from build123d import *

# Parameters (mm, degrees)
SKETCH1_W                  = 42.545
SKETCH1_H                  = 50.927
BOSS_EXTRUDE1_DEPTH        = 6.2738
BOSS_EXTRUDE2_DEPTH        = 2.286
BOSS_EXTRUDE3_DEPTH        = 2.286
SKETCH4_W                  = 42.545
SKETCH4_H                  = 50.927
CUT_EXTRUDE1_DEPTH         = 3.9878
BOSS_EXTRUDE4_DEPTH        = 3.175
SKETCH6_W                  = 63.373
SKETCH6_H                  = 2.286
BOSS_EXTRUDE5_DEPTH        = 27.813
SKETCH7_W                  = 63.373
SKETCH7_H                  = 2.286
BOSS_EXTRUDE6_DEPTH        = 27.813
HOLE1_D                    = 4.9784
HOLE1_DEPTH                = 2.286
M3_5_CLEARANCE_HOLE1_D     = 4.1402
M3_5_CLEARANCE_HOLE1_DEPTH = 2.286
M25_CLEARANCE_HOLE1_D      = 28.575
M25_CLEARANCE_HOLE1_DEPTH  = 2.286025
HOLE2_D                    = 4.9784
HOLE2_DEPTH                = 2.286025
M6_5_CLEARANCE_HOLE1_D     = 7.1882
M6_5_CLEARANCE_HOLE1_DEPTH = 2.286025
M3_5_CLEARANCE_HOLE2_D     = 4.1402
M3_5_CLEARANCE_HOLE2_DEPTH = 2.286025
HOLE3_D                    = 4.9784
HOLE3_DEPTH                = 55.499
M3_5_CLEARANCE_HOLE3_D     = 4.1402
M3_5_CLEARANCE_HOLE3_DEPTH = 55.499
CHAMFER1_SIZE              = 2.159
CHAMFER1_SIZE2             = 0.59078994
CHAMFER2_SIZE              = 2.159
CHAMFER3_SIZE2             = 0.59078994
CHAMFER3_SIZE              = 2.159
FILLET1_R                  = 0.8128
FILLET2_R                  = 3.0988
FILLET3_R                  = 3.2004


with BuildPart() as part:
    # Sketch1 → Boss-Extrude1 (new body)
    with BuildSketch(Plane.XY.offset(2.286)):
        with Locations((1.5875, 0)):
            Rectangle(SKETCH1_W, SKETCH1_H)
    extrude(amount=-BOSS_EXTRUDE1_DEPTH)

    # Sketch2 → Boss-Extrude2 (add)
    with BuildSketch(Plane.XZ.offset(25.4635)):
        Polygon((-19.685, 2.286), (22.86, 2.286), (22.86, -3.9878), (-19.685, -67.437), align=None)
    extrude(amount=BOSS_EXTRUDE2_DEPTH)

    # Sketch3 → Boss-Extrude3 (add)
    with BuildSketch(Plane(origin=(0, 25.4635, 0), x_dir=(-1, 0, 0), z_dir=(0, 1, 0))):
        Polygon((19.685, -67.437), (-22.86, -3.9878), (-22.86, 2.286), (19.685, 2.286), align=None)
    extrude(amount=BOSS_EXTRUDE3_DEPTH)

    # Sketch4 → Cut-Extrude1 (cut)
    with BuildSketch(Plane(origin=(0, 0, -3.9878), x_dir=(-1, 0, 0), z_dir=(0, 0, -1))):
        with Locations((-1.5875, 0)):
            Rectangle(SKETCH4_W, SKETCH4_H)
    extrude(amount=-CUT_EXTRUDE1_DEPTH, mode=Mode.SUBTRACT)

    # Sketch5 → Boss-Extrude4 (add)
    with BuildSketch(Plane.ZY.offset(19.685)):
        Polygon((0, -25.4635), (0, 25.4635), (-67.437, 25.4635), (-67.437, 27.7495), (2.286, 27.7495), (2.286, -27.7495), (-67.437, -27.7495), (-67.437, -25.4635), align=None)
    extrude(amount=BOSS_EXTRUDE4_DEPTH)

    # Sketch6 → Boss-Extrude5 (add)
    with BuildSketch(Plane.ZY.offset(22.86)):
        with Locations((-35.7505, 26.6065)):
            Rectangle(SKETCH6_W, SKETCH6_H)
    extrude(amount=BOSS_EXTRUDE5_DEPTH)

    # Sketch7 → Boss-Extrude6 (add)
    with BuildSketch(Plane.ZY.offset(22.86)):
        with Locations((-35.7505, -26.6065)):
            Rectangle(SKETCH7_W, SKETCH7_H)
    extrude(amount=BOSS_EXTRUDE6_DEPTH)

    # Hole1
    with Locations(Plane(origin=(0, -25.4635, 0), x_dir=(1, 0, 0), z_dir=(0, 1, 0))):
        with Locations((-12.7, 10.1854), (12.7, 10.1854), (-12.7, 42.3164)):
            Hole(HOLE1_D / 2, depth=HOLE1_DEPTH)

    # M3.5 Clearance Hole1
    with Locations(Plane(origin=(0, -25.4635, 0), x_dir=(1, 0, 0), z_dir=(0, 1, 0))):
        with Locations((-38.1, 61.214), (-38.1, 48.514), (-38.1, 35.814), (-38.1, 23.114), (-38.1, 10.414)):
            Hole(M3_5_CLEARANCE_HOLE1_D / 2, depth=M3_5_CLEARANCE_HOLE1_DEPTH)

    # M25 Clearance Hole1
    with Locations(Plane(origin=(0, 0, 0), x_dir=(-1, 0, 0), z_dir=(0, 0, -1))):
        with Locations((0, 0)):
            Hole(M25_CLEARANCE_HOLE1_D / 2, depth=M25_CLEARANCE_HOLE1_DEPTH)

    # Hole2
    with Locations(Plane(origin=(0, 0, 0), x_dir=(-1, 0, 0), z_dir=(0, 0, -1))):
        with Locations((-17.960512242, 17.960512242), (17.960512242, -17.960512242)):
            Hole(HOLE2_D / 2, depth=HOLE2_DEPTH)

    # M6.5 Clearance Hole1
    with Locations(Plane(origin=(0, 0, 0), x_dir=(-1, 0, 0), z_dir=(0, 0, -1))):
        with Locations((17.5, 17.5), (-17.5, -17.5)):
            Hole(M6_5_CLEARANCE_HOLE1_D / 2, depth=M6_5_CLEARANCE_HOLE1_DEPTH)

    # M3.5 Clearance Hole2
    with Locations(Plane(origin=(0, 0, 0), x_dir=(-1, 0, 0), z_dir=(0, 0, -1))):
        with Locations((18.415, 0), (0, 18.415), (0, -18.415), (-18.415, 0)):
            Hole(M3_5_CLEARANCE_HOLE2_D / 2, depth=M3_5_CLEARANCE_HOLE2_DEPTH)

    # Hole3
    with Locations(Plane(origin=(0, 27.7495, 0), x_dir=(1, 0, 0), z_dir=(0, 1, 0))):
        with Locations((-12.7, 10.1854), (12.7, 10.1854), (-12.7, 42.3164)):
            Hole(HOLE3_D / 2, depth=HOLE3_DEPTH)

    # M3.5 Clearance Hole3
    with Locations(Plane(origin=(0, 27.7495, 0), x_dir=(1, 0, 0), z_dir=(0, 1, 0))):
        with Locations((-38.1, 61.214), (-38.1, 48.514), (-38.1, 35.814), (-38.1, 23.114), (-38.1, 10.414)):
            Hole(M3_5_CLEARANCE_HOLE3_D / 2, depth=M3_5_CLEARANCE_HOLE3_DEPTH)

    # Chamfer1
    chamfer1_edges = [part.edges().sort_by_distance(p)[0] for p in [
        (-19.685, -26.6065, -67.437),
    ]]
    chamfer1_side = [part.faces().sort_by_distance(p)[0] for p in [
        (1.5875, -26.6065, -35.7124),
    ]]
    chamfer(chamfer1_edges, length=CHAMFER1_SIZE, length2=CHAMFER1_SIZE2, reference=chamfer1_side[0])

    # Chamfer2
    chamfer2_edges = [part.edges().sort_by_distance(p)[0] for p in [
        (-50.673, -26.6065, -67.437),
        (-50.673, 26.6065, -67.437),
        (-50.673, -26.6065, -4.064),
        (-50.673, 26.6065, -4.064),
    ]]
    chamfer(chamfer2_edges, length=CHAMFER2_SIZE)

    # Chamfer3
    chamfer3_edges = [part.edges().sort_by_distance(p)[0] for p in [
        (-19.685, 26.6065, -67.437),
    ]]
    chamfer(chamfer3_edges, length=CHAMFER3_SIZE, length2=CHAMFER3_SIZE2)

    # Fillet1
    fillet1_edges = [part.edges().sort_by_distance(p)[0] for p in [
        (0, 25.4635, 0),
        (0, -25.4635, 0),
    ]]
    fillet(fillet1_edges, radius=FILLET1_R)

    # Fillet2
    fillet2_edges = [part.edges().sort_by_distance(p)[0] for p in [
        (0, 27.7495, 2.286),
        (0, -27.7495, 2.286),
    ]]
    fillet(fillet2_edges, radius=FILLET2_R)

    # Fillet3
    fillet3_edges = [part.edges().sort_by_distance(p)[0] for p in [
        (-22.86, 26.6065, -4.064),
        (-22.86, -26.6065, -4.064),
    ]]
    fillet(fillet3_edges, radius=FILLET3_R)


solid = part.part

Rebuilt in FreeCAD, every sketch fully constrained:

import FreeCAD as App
import Part
import Sketcher
from FreeCAD import Vector
Q = App.Units.Quantity


def edges_at(feature, points):
    """Names of the edges that pass closest to the given points."""
    edges = feature.Shape.Edges
    near = lambda p: min(range(len(edges)), key=lambda i: edges[i].distToShape(Part.Vertex(*p))[0])
    return sorted({f"Edge{near(p) + 1}" for p in points})

doc = App.newDocument("Part")
body = doc.addObject("PartDesign::Body", "Body")

sketch1 = doc.addObject("Sketcher::SketchObject", "Sketch")
body.addObject(sketch1)
sketch1.AttachmentSupport = (doc.XY_Plane, [""])
sketch1.MapMode = "FlatFace"
sketch1.AttachmentOffset = App.Placement(Vector(0, 0, 0.09 * 25.4), App.Rotation())
sketch1.addGeometry(Part.LineSegment(Vector(-20, 25, 0), Vector(-20, -25, 0)), False)
sketch1.addGeometry(Part.LineSegment(Vector(-20, -25, 0), Vector(23, -25, 0)), False)
sketch1.addGeometry(Part.LineSegment(Vector(23, -25, 0), Vector(23, 25, 0)), False)
sketch1.addGeometry(Part.LineSegment(Vector(23, 25, 0), Vector(-20, 25, 0)), False)
sketch1.addConstraint(Sketcher.Constraint("Coincident", 0, 2, 1, 1))
sketch1.addConstraint(Sketcher.Constraint("Coincident", 1, 2, 2, 1))
sketch1.addConstraint(Sketcher.Constraint("Coincident", 2, 2, 3, 1))
sketch1.addConstraint(Sketcher.Constraint("Coincident", 3, 2, 0, 1))
sketch1.addConstraint(Sketcher.Constraint("Vertical", 0))
sketch1.addConstraint(Sketcher.Constraint("Horizontal", 1))
sketch1.addConstraint(Sketcher.Constraint("Vertical", 2))
sketch1.addConstraint(Sketcher.Constraint("Horizontal", 3))
sketch1.addConstraint(Sketcher.Constraint("DistanceX", -1, 1, 1, 2, Q("0.9 in")))
sketch1.addConstraint(Sketcher.Constraint("DistanceX", 1, 1, 1, 2, Q("1.675 in")))
sketch1.addConstraint(Sketcher.Constraint("DistanceY", 0, 2, 0, 1, Q("2.005 in")))
sketch1.addConstraint(Sketcher.Constraint("DistanceY", 0, 2, -1, 1, Q("1.0025 in")))
pad1 = doc.addObject("PartDesign::Pad", "Pad")
body.addObject(pad1)
pad1.Profile = sketch1
pad1.Length = Q("0.247 in")
pad1.Reversed = True

sketch2 = doc.addObject("Sketcher::SketchObject", "Sketch001")
body.addObject(sketch2)
sketch2.AttachmentSupport = (doc.XZ_Plane, [""])
sketch2.MapMode = "FlatFace"
sketch2.AttachmentOffset = App.Placement(Vector(0, 0, 1.0025 * 25.4), App.Rotation())
sketch2.addGeometry(Part.LineSegment(Vector(23, 2, 0), Vector(-20, 2, 0)), False)
sketch2.addGeometry(Part.LineSegment(Vector(-20, 2, 0), Vector(-20, -67, 0)), False)
sketch2.addGeometry(Part.LineSegment(Vector(-20, -67, 0), Vector(23, -4, 0)), False)
sketch2.addGeometry(Part.LineSegment(Vector(23, -4, 0), Vector(23, 2, 0)), False)
sketch2.addConstraint(Sketcher.Constraint("Coincident", 0, 2, 1, 1))
sketch2.addConstraint(Sketcher.Constraint("Coincident", 1, 2, 2, 1))
sketch2.addConstraint(Sketcher.Constraint("Coincident", 2, 2, 3, 1))
sketch2.addConstraint(Sketcher.Constraint("Coincident", 3, 2, 0, 1))
sketch2.addConstraint(Sketcher.Constraint("Horizontal", 0))
sketch2.addConstraint(Sketcher.Constraint("Vertical", 1))
sketch2.addConstraint(Sketcher.Constraint("Vertical", 3))
sketch2.addConstraint(Sketcher.Constraint("DistanceX", -1, 1, 2, 2, Q("0.9 in")))
sketch2.addConstraint(Sketcher.Constraint("DistanceX", 0, 2, 0, 1, Q("1.675 in")))
sketch2.addConstraint(Sketcher.Constraint("DistanceY", 1, 2, 1, 1, Q("2.745 in")))
sketch2.addConstraint(Sketcher.Constraint("DistanceY", 3, 1, 3, 2, Q("0.247 in")))
sketch2.addConstraint(Sketcher.Constraint("DistanceY", -1, 1, 0, 2, Q("0.09 in")))
pad2 = doc.addObject("PartDesign::Pad", "Pad001")
body.addObject(pad2)
pad2.Profile = sketch2
pad2.Length = Q("0.09 in")

sketch3 = doc.addObject("Sketcher::SketchObject", "Sketch002")
body.addObject(sketch3)
sketch3.AttachmentSupport = (doc.XZ_Plane, [""])
sketch3.MapMode = "FlatFace"
sketch3.AttachmentOffset = App.Placement(Vector(0, 0, -1.0025 * 25.4), App.Rotation())
sketch3.addGeometry(Part.LineSegment(Vector(23, -4, 0), Vector(-20, -67, 0)), False)
sketch3.addGeometry(Part.LineSegment(Vector(-20, -67, 0), Vector(-20, 2, 0)), False)
sketch3.addGeometry(Part.LineSegment(Vector(-20, 2, 0), Vector(23, 2, 0)), False)
sketch3.addGeometry(Part.LineSegment(Vector(23, 2, 0), Vector(23, -4, 0)), False)
sketch3.addConstraint(Sketcher.Constraint("Coincident", 0, 2, 1, 1))
sketch3.addConstraint(Sketcher.Constraint("Coincident", 1, 2, 2, 1))
sketch3.addConstraint(Sketcher.Constraint("Coincident", 2, 2, 3, 1))
sketch3.addConstraint(Sketcher.Constraint("Coincident", 3, 2, 0, 1))
sketch3.addConstraint(Sketcher.Constraint("Vertical", 1))
sketch3.addConstraint(Sketcher.Constraint("Horizontal", 2))
sketch3.addConstraint(Sketcher.Constraint("Vertical", 3))
sketch3.addConstraint(Sketcher.Constraint("DistanceX", -1, 1, 2, 2, Q("0.9 in")))
sketch3.addConstraint(Sketcher.Constraint("DistanceX", 2, 1, 2, 2, Q("1.675 in")))
sketch3.addConstraint(Sketcher.Constraint("DistanceY", 1, 1, 1, 2, Q("2.745 in")))
sketch3.addConstraint(Sketcher.Constraint("DistanceY", 3, 2, 3, 1, Q("0.247 in")))
sketch3.addConstraint(Sketcher.Constraint("DistanceY", -1, 1, 1, 2, Q("0.09 in")))
pad3 = doc.addObject("PartDesign::Pad", "Pad002")
body.addObject(pad3)
pad3.Profile = sketch3
pad3.Length = Q("0.09 in")
pad3.Reversed = True

sketch4 = doc.addObject("Sketcher::SketchObject", "Sketch003")
body.addObject(sketch4)
sketch4.AttachmentSupport = (doc.XY_Plane, [""])
sketch4.MapMode = "FlatFace"
sketch4.AttachmentOffset = App.Placement(Vector(0, 0, -0.157 * 25.4), App.Rotation())
sketch4.addGeometry(Part.LineSegment(Vector(23, 25, 0), Vector(23, -25, 0)), False)
sketch4.addGeometry(Part.LineSegment(Vector(23, -25, 0), Vector(-20, -25, 0)), False)
sketch4.addGeometry(Part.LineSegment(Vector(-20, -25, 0), Vector(-20, 25, 0)), False)
sketch4.addGeometry(Part.LineSegment(Vector(-20, 25, 0), Vector(23, 25, 0)), False)
sketch4.addConstraint(Sketcher.Constraint("Coincident", 0, 2, 1, 1))
sketch4.addConstraint(Sketcher.Constraint("Coincident", 1, 2, 2, 1))
sketch4.addConstraint(Sketcher.Constraint("Coincident", 2, 2, 3, 1))
sketch4.addConstraint(Sketcher.Constraint("Coincident", 3, 2, 0, 1))
sketch4.addConstraint(Sketcher.Constraint("Vertical", 0))
sketch4.addConstraint(Sketcher.Constraint("Horizontal", 1))
sketch4.addConstraint(Sketcher.Constraint("Vertical", 2))
sketch4.addConstraint(Sketcher.Constraint("Horizontal", 3))
sketch4.addConstraint(Sketcher.Constraint("DistanceX", -1, 1, 0, 2, Q("0.9 in")))
sketch4.addConstraint(Sketcher.Constraint("DistanceX", 1, 2, 1, 1, Q("1.675 in")))
sketch4.addConstraint(Sketcher.Constraint("DistanceY", 0, 2, 0, 1, Q("2.005 in")))
sketch4.addConstraint(Sketcher.Constraint("DistanceY", 0, 2, -1, 1, Q("1.0025 in")))
pocket1 = doc.addObject("PartDesign::Pocket", "Pocket")
body.addObject(pocket1)
pocket1.Profile = sketch4
pocket1.Length = Q("0.157 in")
pocket1.Reversed = True

sketch5 = doc.addObject("Sketcher::SketchObject", "Sketch004")
body.addObject(sketch5)
sketch5.AttachmentSupport = (doc.YZ_Plane, [""])
sketch5.MapMode = "FlatFace"
sketch5.AttachmentOffset = App.Placement(Vector(0, 0, -0.775 * 25.4), App.Rotation())
sketch5.addGeometry(Part.LineSegment(Vector(25.5, 0, 0), Vector(-25.5, 0, 0)), False)
sketch5.addGeometry(Part.LineSegment(Vector(-25.5, 0, 0), Vector(-25.5, -67.4, 0)), False)
sketch5.addGeometry(Part.LineSegment(Vector(-25.5, -67.4, 0), Vector(-27.7, -67.4, 0)), False)
sketch5.addGeometry(Part.LineSegment(Vector(-27.7, -67.4, 0), Vector(-27.7, 2.3, 0)), False)
sketch5.addGeometry(Part.LineSegment(Vector(-27.7, 2.3, 0), Vector(27.7, 2.3, 0)), False)
sketch5.addGeometry(Part.LineSegment(Vector(27.7, 2.3, 0), Vector(27.7, -67.4, 0)), False)
sketch5.addGeometry(Part.LineSegment(Vector(27.7, -67.4, 0), Vector(25.5, -67.4, 0)), False)
sketch5.addGeometry(Part.LineSegment(Vector(25.5, -67.4, 0), Vector(25.5, 0, 0)), False)
sketch5.addConstraint(Sketcher.Constraint("Coincident", 0, 2, 1, 1))
sketch5.addConstraint(Sketcher.Constraint("Coincident", 1, 2, 2, 1))
sketch5.addConstraint(Sketcher.Constraint("Coincident", 2, 2, 3, 1))
sketch5.addConstraint(Sketcher.Constraint("Coincident", 3, 2, 4, 1))
sketch5.addConstraint(Sketcher.Constraint("Coincident", 4, 2, 5, 1))
sketch5.addConstraint(Sketcher.Constraint("Coincident", 5, 2, 6, 1))
sketch5.addConstraint(Sketcher.Constraint("Coincident", 6, 2, 7, 1))
sketch5.addConstraint(Sketcher.Constraint("Coincident", 7, 2, 0, 1))
sketch5.addConstraint(Sketcher.Constraint("Horizontal", 0))
sketch5.addConstraint(Sketcher.Constraint("Vertical", 1))
sketch5.addConstraint(Sketcher.Constraint("Horizontal", 2))
sketch5.addConstraint(Sketcher.Constraint("Vertical", 3))
sketch5.addConstraint(Sketcher.Constraint("Horizontal", 4))
sketch5.addConstraint(Sketcher.Constraint("Vertical", 5))
sketch5.addConstraint(Sketcher.Constraint("Horizontal", 6))
sketch5.addConstraint(Sketcher.Constraint("Vertical", 7))
sketch5.addConstraint(Sketcher.Constraint("Symmetric", 0, 2, 7, 2, -1, 1))
sketch5.addConstraint(Sketcher.Constraint("Symmetric", 2, 2, 5, 2, -2))
sketch5.addConstraint(Sketcher.Constraint("DistanceX", 2, 2, 2, 1, Q("0.09 in")))
sketch5.addConstraint(Sketcher.Constraint("DistanceX", 0, 2, 0, 1, Q("2.005 in")))
sketch5.addConstraint(Sketcher.Constraint("DistanceY", 1, 2, 1, 1, Q("2.655 in")))
sketch5.addConstraint(Sketcher.Constraint("DistanceY", 3, 1, 3, 2, Q("2.745 in")))
pad4 = doc.addObject("PartDesign::Pad", "Pad003")
body.addObject(pad4)
pad4.Profile = sketch5
pad4.Length = Q("0.125 in")
pad4.Reversed = True

sketch6 = doc.addObject("Sketcher::SketchObject", "Sketch005")
body.addObject(sketch6)
sketch6.AttachmentSupport = (doc.YZ_Plane, [""])
sketch6.MapMode = "FlatFace"
sketch6.AttachmentOffset = App.Placement(Vector(0, 0, -0.9 * 25.4), App.Rotation())
sketch6.addGeometry(Part.LineSegment(Vector(27.7, -67.4, 0), Vector(25.5, -67.4, 0)), False)
sketch6.addGeometry(Part.LineSegment(Vector(25.5, -67.4, 0), Vector(25.5, -4.1, 0)), False)
sketch6.addGeometry(Part.LineSegment(Vector(25.5, -4.1, 0), Vector(27.7, -4.1, 0)), False)
sketch6.addGeometry(Part.LineSegment(Vector(27.7, -4.1, 0), Vector(27.7, -67.4, 0)), False)
sketch6.addConstraint(Sketcher.Constraint("Coincident", 0, 2, 1, 1))
sketch6.addConstraint(Sketcher.Constraint("Coincident", 1, 2, 2, 1))
sketch6.addConstraint(Sketcher.Constraint("Coincident", 2, 2, 3, 1))
sketch6.addConstraint(Sketcher.Constraint("Coincident", 3, 2, 0, 1))
sketch6.addConstraint(Sketcher.Constraint("Horizontal", 0))
sketch6.addConstraint(Sketcher.Constraint("Vertical", 1))
sketch6.addConstraint(Sketcher.Constraint("Horizontal", 2))
sketch6.addConstraint(Sketcher.Constraint("Vertical", 3))
sketch6.addConstraint(Sketcher.Constraint("DistanceX", 0, 2, 0, 1, Q("0.09 in")))
sketch6.addConstraint(Sketcher.Constraint("DistanceY", 1, 1, 1, 2, Q("2.495 in")))
sketch6.addConstraint(Sketcher.Constraint("DistanceY", 1, 2, -1, 1, Q("0.16 in")))
sketch6.addConstraint(Sketcher.Constraint("DistanceX", -1, 1, 0, 2, Q("1.0025 in")))
pad5 = doc.addObject("PartDesign::Pad", "Pad004")
body.addObject(pad5)
pad5.Profile = sketch6
pad5.Length = Q("1.095 in")
pad5.Reversed = True

sketch7 = doc.addObject("Sketcher::SketchObject", "Sketch006")
body.addObject(sketch7)
sketch7.AttachmentSupport = (doc.YZ_Plane, [""])
sketch7.MapMode = "FlatFace"
sketch7.AttachmentOffset = App.Placement(Vector(0, 0, -0.9 * 25.4), App.Rotation())
sketch7.addGeometry(Part.LineSegment(Vector(-25.5, -67.4, 0), Vector(-27.7, -67.4, 0)), False)
sketch7.addGeometry(Part.LineSegment(Vector(-27.7, -67.4, 0), Vector(-27.7, -4.1, 0)), False)
sketch7.addGeometry(Part.LineSegment(Vector(-27.7, -4.1, 0), Vector(-25.5, -4.1, 0)), False)
sketch7.addGeometry(Part.LineSegment(Vector(-25.5, -4.1, 0), Vector(-25.5, -67.4, 0)), False)
sketch7.addConstraint(Sketcher.Constraint("Coincident", 0, 2, 1, 1))
sketch7.addConstraint(Sketcher.Constraint("Coincident", 1, 2, 2, 1))
sketch7.addConstraint(Sketcher.Constraint("Coincident", 2, 2, 3, 1))
sketch7.addConstraint(Sketcher.Constraint("Coincident", 3, 2, 0, 1))
sketch7.addConstraint(Sketcher.Constraint("Horizontal", 0))
sketch7.addConstraint(Sketcher.Constraint("Vertical", 1))
sketch7.addConstraint(Sketcher.Constraint("Horizontal", 2))
sketch7.addConstraint(Sketcher.Constraint("Vertical", 3))
sketch7.addConstraint(Sketcher.Constraint("DistanceX", 0, 2, 0, 1, Q("0.09 in")))
sketch7.addConstraint(Sketcher.Constraint("DistanceY", 1, 1, 1, 2, Q("2.495 in")))
sketch7.addConstraint(Sketcher.Constraint("DistanceY", 1, 2, -1, 1, Q("0.16 in")))
sketch7.addConstraint(Sketcher.Constraint("DistanceX", 0, 2, -1, 1, Q("1.0925 in")))
pad6 = doc.addObject("PartDesign::Pad", "Pad005")
body.addObject(pad6)
pad6.Profile = sketch7
pad6.Length = Q("1.095 in")
pad6.Reversed = True

sketch8 = doc.addObject("Sketcher::SketchObject", "Sketch007")
body.addObject(sketch8)
sketch8.AttachmentSupport = (doc.XZ_Plane, [""])
sketch8.MapMode = "FlatFace"
sketch8.AttachmentOffset = App.Placement(Vector(0, 0, 1.0025 * 25.4), App.Rotation())
sketch8.addGeometry(Part.Circle(Vector(-12.7, -10.2, 0), Vector(0, 0, 1), 2.5), False)
sketch8.addGeometry(Part.Circle(Vector(12.7, -10.2, 0), Vector(0, 0, 1), 2.5), False)
sketch8.addGeometry(Part.Circle(Vector(-12.7, -42.3, 0), Vector(0, 0, 1), 2.5), False)
sketch8.addConstraint(Sketcher.Constraint("Equal", 0, 1))
sketch8.addConstraint(Sketcher.Constraint("Equal", 1, 2))
sketch8.addConstraint(Sketcher.Constraint("Symmetric", 0, 3, 1, 3, -2))
sketch8.addConstraint(Sketcher.Constraint("Vertical", 0, 3, 2, 3))
sketch8.addConstraint(Sketcher.Constraint("Diameter", 0, Q("0.196 in")))
sketch8.addConstraint(Sketcher.Constraint("DistanceX", 0, 3, 1, 3, Q("1 in")))
sketch8.addConstraint(Sketcher.Constraint("DistanceY", 0, 3, -1, 1, Q("0.401 in")))
sketch8.addConstraint(Sketcher.Constraint("DistanceY", 2, 3, -1, 1, Q("1.666 in")))
doc.recompute()
hole = doc.addObject("PartDesign::Hole", "Hole")
body.addObject(hole)
hole.Profile = sketch8
hole.ThreadType = "None"
hole.Diameter = Q("0.196 in")
hole.DepthType = "Dimension"
hole.Depth = Q("0.09 in")
hole.DrillPoint = "Flat"
hole.Reversed = True

sketch9 = doc.addObject("Sketcher::SketchObject", "Sketch008")
body.addObject(sketch9)
sketch9.AttachmentSupport = (doc.XZ_Plane, [""])
sketch9.MapMode = "FlatFace"
sketch9.AttachmentOffset = App.Placement(Vector(0, 0, 1.0025 * 25.4), App.Rotation())
sketch9.addGeometry(Part.Circle(Vector(-38.1, -61.2, 0), Vector(0, 0, 1), 2.1), False)
sketch9.addGeometry(Part.Circle(Vector(-38.1, -48.5, 0), Vector(0, 0, 1), 2.1), False)
sketch9.addGeometry(Part.Circle(Vector(-38.1, -35.8, 0), Vector(0, 0, 1), 2.1), False)
sketch9.addGeometry(Part.Circle(Vector(-38.1, -23.1, 0), Vector(0, 0, 1), 2.1), False)
sketch9.addGeometry(Part.Circle(Vector(-38.1, -10.4, 0), Vector(0, 0, 1), 2.1), False)
sketch9.addConstraint(Sketcher.Constraint("Equal", 0, 1))
sketch9.addConstraint(Sketcher.Constraint("Equal", 1, 2))
sketch9.addConstraint(Sketcher.Constraint("Equal", 2, 3))
sketch9.addConstraint(Sketcher.Constraint("Equal", 3, 4))
sketch9.addConstraint(Sketcher.Constraint("Vertical", 0, 3, 1, 3))
sketch9.addConstraint(Sketcher.Constraint("Vertical", 1, 3, 2, 3))
sketch9.addConstraint(Sketcher.Constraint("Vertical", 2, 3, 3, 3))
sketch9.addConstraint(Sketcher.Constraint("Vertical", 3, 3, 4, 3))
sketch9.addConstraint(Sketcher.Constraint("Diameter", 0, Q("0.163 in")))
sketch9.addConstraint(Sketcher.Constraint("DistanceY", 0, 3, 2, 3, Q("1 in")))
sketch9.addConstraint(Sketcher.Constraint("DistanceY", 1, 3, 3, 3, Q("1 in")))
sketch9.addConstraint(Sketcher.Constraint("DistanceY", 2, 3, 4, 3, Q("1 in")))
sketch9.addConstraint(Sketcher.Constraint("DistanceX", 0, 3, -1, 1, Q("1.5 in")))
sketch9.addConstraint(Sketcher.Constraint("DistanceY", 0, 3, 1, 3, Q("0.5 in")))
sketch9.addConstraint(Sketcher.Constraint("DistanceY", 0, 3, -1, 1, Q("2.41 in")))
doc.recompute()
hole2 = doc.addObject("PartDesign::Hole", "Hole001")
body.addObject(hole2)
hole2.Profile = sketch9
hole2.ThreadType = "None"
hole2.Diameter = Q("0.163 in")
hole2.DepthType = "Dimension"
hole2.Depth = Q("0.09 in")
hole2.DrillPoint = "Flat"
hole2.Reversed = True

sketch10 = doc.addObject("Sketcher::SketchObject", "Sketch009")
body.addObject(sketch10)
sketch10.AttachmentSupport = (doc.XY_Plane, [""])
sketch10.MapMode = "FlatFace"
sketch10.addGeometry(Part.Circle(Vector(0, 0, 0), Vector(0, 0, 1), 14), False)
sketch10.addConstraint(Sketcher.Constraint("Coincident", 0, 3, -1, 1))
sketch10.addConstraint(Sketcher.Constraint("Diameter", 0, Q("1.125 in")))
doc.recompute()
hole3 = doc.addObject("PartDesign::Hole", "Hole002")
body.addObject(hole3)
hole3.Profile = sketch10
hole3.ThreadType = "None"
hole3.Diameter = Q("1.125 in")
hole3.DepthType = "Dimension"
hole3.Depth = 2.286025
hole3.DrillPoint = "Flat"
hole3.Reversed = True

sketch11 = doc.addObject("Sketcher::SketchObject", "Sketch010")
body.addObject(sketch11)
sketch11.AttachmentSupport = (doc.XY_Plane, [""])
sketch11.MapMode = "FlatFace"
sketch11.addGeometry(Part.Circle(Vector(18, 18, 0), Vector(0, 0, 1), 2.5), False)
sketch11.addGeometry(Part.Circle(Vector(-18, -18, 0), Vector(0, 0, 1), 2.5), False)
sketch11.addConstraint(Sketcher.Constraint("Equal", 0, 1))
sketch11.addConstraint(Sketcher.Constraint("Symmetric", 0, 3, 1, 3, -1, 1))
sketch11.addConstraint(Sketcher.Constraint("Diameter", 0, Q("0.196 in")))
sketch11.addConstraint(Sketcher.Constraint("DistanceX", -1, 1, 0, 3, 17.960512))
sketch11.addConstraint(Sketcher.Constraint("DistanceY", -1, 1, 0, 3, 17.960512))
doc.recompute()
hole4 = doc.addObject("PartDesign::Hole", "Hole003")
body.addObject(hole4)
hole4.Profile = sketch11
hole4.ThreadType = "None"
hole4.Diameter = Q("0.196 in")
hole4.DepthType = "Dimension"
hole4.Depth = 2.286025
hole4.DrillPoint = "Flat"
hole4.Reversed = True

sketch12 = doc.addObject("Sketcher::SketchObject", "Sketch011")
body.addObject(sketch12)
sketch12.AttachmentSupport = (doc.XY_Plane, [""])
sketch12.MapMode = "FlatFace"
sketch12.addGeometry(Part.Circle(Vector(-17.5, 17.5, 0), Vector(0, 0, 1), 3.6), False)
sketch12.addGeometry(Part.Circle(Vector(17.5, -17.5, 0), Vector(0, 0, 1), 3.6), False)
sketch12.addConstraint(Sketcher.Constraint("Equal", 0, 1))
sketch12.addConstraint(Sketcher.Constraint("Symmetric", 0, 3, 1, 3, -1, 1))
sketch12.addConstraint(Sketcher.Constraint("Diameter", 0, Q("0.283 in")))
sketch12.addConstraint(Sketcher.Constraint("DistanceX", 0, 3, -1, 1, 17.5))
sketch12.addConstraint(Sketcher.Constraint("DistanceY", -1, 1, 0, 3, 17.5))
doc.recompute()
hole5 = doc.addObject("PartDesign::Hole", "Hole004")
body.addObject(hole5)
hole5.Profile = sketch12
hole5.ThreadType = "None"
hole5.Diameter = Q("0.283 in")
hole5.DepthType = "Dimension"
hole5.Depth = 2.286025
hole5.DrillPoint = "Flat"
hole5.Reversed = True

sketch13 = doc.addObject("Sketcher::SketchObject", "Sketch012")
body.addObject(sketch13)
sketch13.AttachmentSupport = (doc.XY_Plane, [""])
sketch13.MapMode = "FlatFace"
sketch13.addGeometry(Part.Circle(Vector(-18.4, 0, 0), Vector(0, 0, 1), 2.1), False)
sketch13.addGeometry(Part.Circle(Vector(0, 18.4, 0), Vector(0, 0, 1), 2.1), False)
sketch13.addGeometry(Part.Circle(Vector(0, -18.4, 0), Vector(0, 0, 1), 2.1), False)
sketch13.addGeometry(Part.Circle(Vector(18.4, 0, 0), Vector(0, 0, 1), 2.1), False)
sketch13.addConstraint(Sketcher.Constraint("Equal", 0, 1))
sketch13.addConstraint(Sketcher.Constraint("Equal", 1, 2))
sketch13.addConstraint(Sketcher.Constraint("Equal", 2, 3))
sketch13.addConstraint(Sketcher.Constraint("Symmetric", 1, 3, 2, 3, -1, 1))
sketch13.addConstraint(Sketcher.Constraint("Symmetric", 0, 3, 3, 3, -1, 1))
sketch13.addConstraint(Sketcher.Constraint("PointOnObject", 0, 3, -1))
sketch13.addConstraint(Sketcher.Constraint("PointOnObject", 1, 3, -2))
sketch13.addConstraint(Sketcher.Constraint("Diameter", 0, Q("0.163 in")))
sketch13.addConstraint(Sketcher.Constraint("DistanceY", 2, 3, 1, 3, Q("1.45 in")))
sketch13.addConstraint(Sketcher.Constraint("DistanceX", 0, 3, 3, 3, Q("1.45 in")))
doc.recompute()
hole6 = doc.addObject("PartDesign::Hole", "Hole005")
body.addObject(hole6)
hole6.Profile = sketch13
hole6.ThreadType = "None"
hole6.Diameter = Q("0.163 in")
hole6.DepthType = "Dimension"
hole6.Depth = 2.286025
hole6.DrillPoint = "Flat"
hole6.Reversed = True

sketch14 = doc.addObject("Sketcher::SketchObject", "Sketch013")
body.addObject(sketch14)
sketch14.AttachmentSupport = (doc.XZ_Plane, [""])
sketch14.MapMode = "FlatFace"
sketch14.AttachmentOffset = App.Placement(Vector(0, 0, -1.0925 * 25.4), App.Rotation())
sketch14.addGeometry(Part.Circle(Vector(-12.7, -10.2, 0), Vector(0, 0, 1), 2.5), False)
sketch14.addGeometry(Part.Circle(Vector(12.7, -10.2, 0), Vector(0, 0, 1), 2.5), False)
sketch14.addGeometry(Part.Circle(Vector(-12.7, -42.3, 0), Vector(0, 0, 1), 2.5), False)
sketch14.addConstraint(Sketcher.Constraint("Equal", 0, 1))
sketch14.addConstraint(Sketcher.Constraint("Equal", 1, 2))
sketch14.addConstraint(Sketcher.Constraint("Symmetric", 0, 3, 1, 3, -2))
sketch14.addConstraint(Sketcher.Constraint("Vertical", 0, 3, 2, 3))
sketch14.addConstraint(Sketcher.Constraint("Diameter", 0, Q("0.196 in")))
sketch14.addConstraint(Sketcher.Constraint("DistanceX", 0, 3, 1, 3, Q("1 in")))
sketch14.addConstraint(Sketcher.Constraint("DistanceY", 0, 3, -1, 1, Q("0.401 in")))
sketch14.addConstraint(Sketcher.Constraint("DistanceY", 2, 3, -1, 1, Q("1.666 in")))
doc.recompute()
hole7 = doc.addObject("PartDesign::Hole", "Hole006")
body.addObject(hole7)
hole7.Profile = sketch14
hole7.ThreadType = "None"
hole7.Diameter = Q("0.196 in")
hole7.DepthType = "Dimension"
hole7.Depth = Q("2.185 in")
hole7.DrillPoint = "Flat"
hole7.Reversed = True

sketch15 = doc.addObject("Sketcher::SketchObject", "Sketch014")
body.addObject(sketch15)
sketch15.AttachmentSupport = (doc.XZ_Plane, [""])
sketch15.MapMode = "FlatFace"
sketch15.AttachmentOffset = App.Placement(Vector(0, 0, -1.0925 * 25.4), App.Rotation())
sketch15.addGeometry(Part.Circle(Vector(-38.1, -61.2, 0), Vector(0, 0, 1), 2.1), False)
sketch15.addGeometry(Part.Circle(Vector(-38.1, -48.5, 0), Vector(0, 0, 1), 2.1), False)
sketch15.addGeometry(Part.Circle(Vector(-38.1, -35.8, 0), Vector(0, 0, 1), 2.1), False)
sketch15.addGeometry(Part.Circle(Vector(-38.1, -23.1, 0), Vector(0, 0, 1), 2.1), False)
sketch15.addGeometry(Part.Circle(Vector(-38.1, -10.4, 0), Vector(0, 0, 1), 2.1), False)
sketch15.addConstraint(Sketcher.Constraint("Equal", 0, 1))
sketch15.addConstraint(Sketcher.Constraint("Equal", 1, 2))
sketch15.addConstraint(Sketcher.Constraint("Equal", 2, 3))
sketch15.addConstraint(Sketcher.Constraint("Equal", 3, 4))
sketch15.addConstraint(Sketcher.Constraint("Vertical", 0, 3, 1, 3))
sketch15.addConstraint(Sketcher.Constraint("Vertical", 1, 3, 2, 3))
sketch15.addConstraint(Sketcher.Constraint("Vertical", 2, 3, 3, 3))
sketch15.addConstraint(Sketcher.Constraint("Vertical", 3, 3, 4, 3))
sketch15.addConstraint(Sketcher.Constraint("Diameter", 0, Q("0.163 in")))
sketch15.addConstraint(Sketcher.Constraint("DistanceY", 0, 3, 2, 3, Q("1 in")))
sketch15.addConstraint(Sketcher.Constraint("DistanceY", 1, 3, 3, 3, Q("1 in")))
sketch15.addConstraint(Sketcher.Constraint("DistanceY", 2, 3, 4, 3, Q("1 in")))
sketch15.addConstraint(Sketcher.Constraint("DistanceX", 0, 3, -1, 1, Q("1.5 in")))
sketch15.addConstraint(Sketcher.Constraint("DistanceY", 0, 3, 1, 3, Q("0.5 in")))
sketch15.addConstraint(Sketcher.Constraint("DistanceY", 0, 3, -1, 1, Q("2.41 in")))
doc.recompute()
hole8 = doc.addObject("PartDesign::Hole", "Hole007")
body.addObject(hole8)
hole8.Profile = sketch15
hole8.ThreadType = "None"
hole8.Diameter = Q("0.163 in")
hole8.DepthType = "Dimension"
hole8.Depth = Q("2.185 in")
hole8.DrillPoint = "Flat"
hole8.Reversed = True
doc.recompute()

chamfer = doc.addObject("PartDesign::Chamfer", "Chamfer")
body.addObject(chamfer)
chamfer.Base = (hole8, edges_at(hole8, [(-19.685, -26.607, -67.437)]))
chamfer.ChamferType = "Two distances"
chamfer.Size = Q("0.085 in")
chamfer.Size2 = 0.59079
doc.recompute()

chamfer2 = doc.addObject("PartDesign::Chamfer", "Chamfer001")
body.addObject(chamfer2)
chamfer2.Base = (chamfer, edges_at(chamfer, [
    (-50.673, -26.607, -67.437),
    (-50.673, 26.607, -67.437),
    (-50.673, -26.607, -4.064),
    (-50.673, 26.607, -4.064),
]))
chamfer2.Size = Q("0.085 in")
doc.recompute()

chamfer3 = doc.addObject("PartDesign::Chamfer", "Chamfer002")
body.addObject(chamfer3)
chamfer3.Base = (chamfer2, edges_at(chamfer2, [(-19.685, 26.607, -67.437)]))
chamfer3.ChamferType = "Two distances"
chamfer3.Size = Q("0.085 in")
chamfer3.Size2 = 0.59079
doc.recompute()

fillet = doc.addObject("PartDesign::Fillet", "Fillet")
body.addObject(fillet)
fillet.Base = (chamfer3, edges_at(chamfer3, [(0, 25.463, 0), (0, -25.463, 0)]))
fillet.Radius = Q("0.032 in")
doc.recompute()

fillet2 = doc.addObject("PartDesign::Fillet", "Fillet001")
body.addObject(fillet2)
fillet2.Base = (fillet, edges_at(fillet, [(0, 27.75, 2.286), (0, -27.75, 2.286)]))
fillet2.Radius = Q("0.122 in")
doc.recompute()

fillet3 = doc.addObject("PartDesign::Fillet", "Fillet002")
body.addObject(fillet3)
fillet3.Base = (fillet2, edges_at(fillet2, [(-22.86, 26.607, -4.064), (-22.86, -26.607, -4.064)]))
fillet3.Radius = Q("0.126 in")

doc.recompute()
